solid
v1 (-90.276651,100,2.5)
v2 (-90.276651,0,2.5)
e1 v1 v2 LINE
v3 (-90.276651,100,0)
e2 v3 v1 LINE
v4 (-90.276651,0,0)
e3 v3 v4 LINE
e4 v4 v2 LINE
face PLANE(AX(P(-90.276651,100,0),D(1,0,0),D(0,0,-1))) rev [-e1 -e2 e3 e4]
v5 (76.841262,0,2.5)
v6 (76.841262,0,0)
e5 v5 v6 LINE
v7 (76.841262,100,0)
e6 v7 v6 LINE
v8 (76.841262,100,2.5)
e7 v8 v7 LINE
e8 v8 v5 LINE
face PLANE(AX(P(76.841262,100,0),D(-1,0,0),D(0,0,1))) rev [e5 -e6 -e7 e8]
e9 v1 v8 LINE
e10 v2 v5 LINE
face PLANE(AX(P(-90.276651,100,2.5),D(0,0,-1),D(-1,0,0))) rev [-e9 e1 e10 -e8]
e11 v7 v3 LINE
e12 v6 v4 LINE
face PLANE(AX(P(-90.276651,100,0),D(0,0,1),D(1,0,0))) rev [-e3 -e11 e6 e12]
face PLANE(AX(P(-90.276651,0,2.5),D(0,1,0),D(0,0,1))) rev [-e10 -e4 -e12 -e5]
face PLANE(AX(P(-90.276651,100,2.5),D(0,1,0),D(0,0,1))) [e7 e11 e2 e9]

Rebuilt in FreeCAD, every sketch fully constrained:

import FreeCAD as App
import Part
import Sketcher
Q = App.Units.Quantity


def add_polygon(sketch, points):
    """Adds a closed chain of lines whose ends are joined by coincident constraints."""
    first, n = sketch.GeometryCount, len(points)
    for a, b in zip(points, points[1:] + points[:1]):
        sketch.addGeometry(Part.LineSegment(App.Vector(*a, 0), App.Vector(*b, 0)), False)
    for i in range(n):
        sketch.addConstraint(Sketcher.Constraint("Coincident", first + i, 2, first + (i + 1) % n, 1))

doc = App.newDocument("Part")
params = doc.addObject("Spreadsheet::Sheet", "Params")
for row, (alias, value) in enumerate([
    ("sketch1_height", "2.5 mm"),
    ("pad1_length", "100 mm"),
], start=1):
    params.set(f"A{row}", alias)
    params.set(f"B{row}", "=" + value)
    params.setAlias(f"B{row}", alias)

body = doc.addObject("PartDesign::Body", "Body")

# Sketch on XZ plane
sketch1 = body.newObject("Sketcher::SketchObject", "Sketch")
sketch1.AttachmentSupport = (doc.getObject("XZ_Plane"), [""])
sketch1.MapMode = "FlatFace"
add_polygon(sketch1, [(-90.3, 0), (-90.3, 2.5), (76.8, 2.5), (76.8, 0)])  # lines 0-3
sketch1.addConstraint([
    Sketcher.Constraint("Vertical", 0),
    Sketcher.Constraint("Horizontal", 1),
    Sketcher.Constraint("Vertical", 2),
    Sketcher.Constraint("Horizontal", 3),
    Sketcher.Constraint("PointOnObject", 2, 2, -1),
    Sketcher.Constraint("DistanceY", 0, 1, 0, 2, Q("2.5 mm")),
    Sketcher.Constraint("DistanceX", 1, 1, 1, 2, Q("167.117913 mm")),
    Sketcher.Constraint("DistanceX", 0, 2, -1, 1, Q("90.276651 mm")),
])
sketch1.setExpression("Constraints[9]", "Params.sketch1_height")
pad1 = body.newObject("PartDesign::Pad", "Pad")
pad1.Profile = sketch1
pad1.setExpression("Length", "Params.pad1_length")
pad1.Reversed = True

doc.recompute()
